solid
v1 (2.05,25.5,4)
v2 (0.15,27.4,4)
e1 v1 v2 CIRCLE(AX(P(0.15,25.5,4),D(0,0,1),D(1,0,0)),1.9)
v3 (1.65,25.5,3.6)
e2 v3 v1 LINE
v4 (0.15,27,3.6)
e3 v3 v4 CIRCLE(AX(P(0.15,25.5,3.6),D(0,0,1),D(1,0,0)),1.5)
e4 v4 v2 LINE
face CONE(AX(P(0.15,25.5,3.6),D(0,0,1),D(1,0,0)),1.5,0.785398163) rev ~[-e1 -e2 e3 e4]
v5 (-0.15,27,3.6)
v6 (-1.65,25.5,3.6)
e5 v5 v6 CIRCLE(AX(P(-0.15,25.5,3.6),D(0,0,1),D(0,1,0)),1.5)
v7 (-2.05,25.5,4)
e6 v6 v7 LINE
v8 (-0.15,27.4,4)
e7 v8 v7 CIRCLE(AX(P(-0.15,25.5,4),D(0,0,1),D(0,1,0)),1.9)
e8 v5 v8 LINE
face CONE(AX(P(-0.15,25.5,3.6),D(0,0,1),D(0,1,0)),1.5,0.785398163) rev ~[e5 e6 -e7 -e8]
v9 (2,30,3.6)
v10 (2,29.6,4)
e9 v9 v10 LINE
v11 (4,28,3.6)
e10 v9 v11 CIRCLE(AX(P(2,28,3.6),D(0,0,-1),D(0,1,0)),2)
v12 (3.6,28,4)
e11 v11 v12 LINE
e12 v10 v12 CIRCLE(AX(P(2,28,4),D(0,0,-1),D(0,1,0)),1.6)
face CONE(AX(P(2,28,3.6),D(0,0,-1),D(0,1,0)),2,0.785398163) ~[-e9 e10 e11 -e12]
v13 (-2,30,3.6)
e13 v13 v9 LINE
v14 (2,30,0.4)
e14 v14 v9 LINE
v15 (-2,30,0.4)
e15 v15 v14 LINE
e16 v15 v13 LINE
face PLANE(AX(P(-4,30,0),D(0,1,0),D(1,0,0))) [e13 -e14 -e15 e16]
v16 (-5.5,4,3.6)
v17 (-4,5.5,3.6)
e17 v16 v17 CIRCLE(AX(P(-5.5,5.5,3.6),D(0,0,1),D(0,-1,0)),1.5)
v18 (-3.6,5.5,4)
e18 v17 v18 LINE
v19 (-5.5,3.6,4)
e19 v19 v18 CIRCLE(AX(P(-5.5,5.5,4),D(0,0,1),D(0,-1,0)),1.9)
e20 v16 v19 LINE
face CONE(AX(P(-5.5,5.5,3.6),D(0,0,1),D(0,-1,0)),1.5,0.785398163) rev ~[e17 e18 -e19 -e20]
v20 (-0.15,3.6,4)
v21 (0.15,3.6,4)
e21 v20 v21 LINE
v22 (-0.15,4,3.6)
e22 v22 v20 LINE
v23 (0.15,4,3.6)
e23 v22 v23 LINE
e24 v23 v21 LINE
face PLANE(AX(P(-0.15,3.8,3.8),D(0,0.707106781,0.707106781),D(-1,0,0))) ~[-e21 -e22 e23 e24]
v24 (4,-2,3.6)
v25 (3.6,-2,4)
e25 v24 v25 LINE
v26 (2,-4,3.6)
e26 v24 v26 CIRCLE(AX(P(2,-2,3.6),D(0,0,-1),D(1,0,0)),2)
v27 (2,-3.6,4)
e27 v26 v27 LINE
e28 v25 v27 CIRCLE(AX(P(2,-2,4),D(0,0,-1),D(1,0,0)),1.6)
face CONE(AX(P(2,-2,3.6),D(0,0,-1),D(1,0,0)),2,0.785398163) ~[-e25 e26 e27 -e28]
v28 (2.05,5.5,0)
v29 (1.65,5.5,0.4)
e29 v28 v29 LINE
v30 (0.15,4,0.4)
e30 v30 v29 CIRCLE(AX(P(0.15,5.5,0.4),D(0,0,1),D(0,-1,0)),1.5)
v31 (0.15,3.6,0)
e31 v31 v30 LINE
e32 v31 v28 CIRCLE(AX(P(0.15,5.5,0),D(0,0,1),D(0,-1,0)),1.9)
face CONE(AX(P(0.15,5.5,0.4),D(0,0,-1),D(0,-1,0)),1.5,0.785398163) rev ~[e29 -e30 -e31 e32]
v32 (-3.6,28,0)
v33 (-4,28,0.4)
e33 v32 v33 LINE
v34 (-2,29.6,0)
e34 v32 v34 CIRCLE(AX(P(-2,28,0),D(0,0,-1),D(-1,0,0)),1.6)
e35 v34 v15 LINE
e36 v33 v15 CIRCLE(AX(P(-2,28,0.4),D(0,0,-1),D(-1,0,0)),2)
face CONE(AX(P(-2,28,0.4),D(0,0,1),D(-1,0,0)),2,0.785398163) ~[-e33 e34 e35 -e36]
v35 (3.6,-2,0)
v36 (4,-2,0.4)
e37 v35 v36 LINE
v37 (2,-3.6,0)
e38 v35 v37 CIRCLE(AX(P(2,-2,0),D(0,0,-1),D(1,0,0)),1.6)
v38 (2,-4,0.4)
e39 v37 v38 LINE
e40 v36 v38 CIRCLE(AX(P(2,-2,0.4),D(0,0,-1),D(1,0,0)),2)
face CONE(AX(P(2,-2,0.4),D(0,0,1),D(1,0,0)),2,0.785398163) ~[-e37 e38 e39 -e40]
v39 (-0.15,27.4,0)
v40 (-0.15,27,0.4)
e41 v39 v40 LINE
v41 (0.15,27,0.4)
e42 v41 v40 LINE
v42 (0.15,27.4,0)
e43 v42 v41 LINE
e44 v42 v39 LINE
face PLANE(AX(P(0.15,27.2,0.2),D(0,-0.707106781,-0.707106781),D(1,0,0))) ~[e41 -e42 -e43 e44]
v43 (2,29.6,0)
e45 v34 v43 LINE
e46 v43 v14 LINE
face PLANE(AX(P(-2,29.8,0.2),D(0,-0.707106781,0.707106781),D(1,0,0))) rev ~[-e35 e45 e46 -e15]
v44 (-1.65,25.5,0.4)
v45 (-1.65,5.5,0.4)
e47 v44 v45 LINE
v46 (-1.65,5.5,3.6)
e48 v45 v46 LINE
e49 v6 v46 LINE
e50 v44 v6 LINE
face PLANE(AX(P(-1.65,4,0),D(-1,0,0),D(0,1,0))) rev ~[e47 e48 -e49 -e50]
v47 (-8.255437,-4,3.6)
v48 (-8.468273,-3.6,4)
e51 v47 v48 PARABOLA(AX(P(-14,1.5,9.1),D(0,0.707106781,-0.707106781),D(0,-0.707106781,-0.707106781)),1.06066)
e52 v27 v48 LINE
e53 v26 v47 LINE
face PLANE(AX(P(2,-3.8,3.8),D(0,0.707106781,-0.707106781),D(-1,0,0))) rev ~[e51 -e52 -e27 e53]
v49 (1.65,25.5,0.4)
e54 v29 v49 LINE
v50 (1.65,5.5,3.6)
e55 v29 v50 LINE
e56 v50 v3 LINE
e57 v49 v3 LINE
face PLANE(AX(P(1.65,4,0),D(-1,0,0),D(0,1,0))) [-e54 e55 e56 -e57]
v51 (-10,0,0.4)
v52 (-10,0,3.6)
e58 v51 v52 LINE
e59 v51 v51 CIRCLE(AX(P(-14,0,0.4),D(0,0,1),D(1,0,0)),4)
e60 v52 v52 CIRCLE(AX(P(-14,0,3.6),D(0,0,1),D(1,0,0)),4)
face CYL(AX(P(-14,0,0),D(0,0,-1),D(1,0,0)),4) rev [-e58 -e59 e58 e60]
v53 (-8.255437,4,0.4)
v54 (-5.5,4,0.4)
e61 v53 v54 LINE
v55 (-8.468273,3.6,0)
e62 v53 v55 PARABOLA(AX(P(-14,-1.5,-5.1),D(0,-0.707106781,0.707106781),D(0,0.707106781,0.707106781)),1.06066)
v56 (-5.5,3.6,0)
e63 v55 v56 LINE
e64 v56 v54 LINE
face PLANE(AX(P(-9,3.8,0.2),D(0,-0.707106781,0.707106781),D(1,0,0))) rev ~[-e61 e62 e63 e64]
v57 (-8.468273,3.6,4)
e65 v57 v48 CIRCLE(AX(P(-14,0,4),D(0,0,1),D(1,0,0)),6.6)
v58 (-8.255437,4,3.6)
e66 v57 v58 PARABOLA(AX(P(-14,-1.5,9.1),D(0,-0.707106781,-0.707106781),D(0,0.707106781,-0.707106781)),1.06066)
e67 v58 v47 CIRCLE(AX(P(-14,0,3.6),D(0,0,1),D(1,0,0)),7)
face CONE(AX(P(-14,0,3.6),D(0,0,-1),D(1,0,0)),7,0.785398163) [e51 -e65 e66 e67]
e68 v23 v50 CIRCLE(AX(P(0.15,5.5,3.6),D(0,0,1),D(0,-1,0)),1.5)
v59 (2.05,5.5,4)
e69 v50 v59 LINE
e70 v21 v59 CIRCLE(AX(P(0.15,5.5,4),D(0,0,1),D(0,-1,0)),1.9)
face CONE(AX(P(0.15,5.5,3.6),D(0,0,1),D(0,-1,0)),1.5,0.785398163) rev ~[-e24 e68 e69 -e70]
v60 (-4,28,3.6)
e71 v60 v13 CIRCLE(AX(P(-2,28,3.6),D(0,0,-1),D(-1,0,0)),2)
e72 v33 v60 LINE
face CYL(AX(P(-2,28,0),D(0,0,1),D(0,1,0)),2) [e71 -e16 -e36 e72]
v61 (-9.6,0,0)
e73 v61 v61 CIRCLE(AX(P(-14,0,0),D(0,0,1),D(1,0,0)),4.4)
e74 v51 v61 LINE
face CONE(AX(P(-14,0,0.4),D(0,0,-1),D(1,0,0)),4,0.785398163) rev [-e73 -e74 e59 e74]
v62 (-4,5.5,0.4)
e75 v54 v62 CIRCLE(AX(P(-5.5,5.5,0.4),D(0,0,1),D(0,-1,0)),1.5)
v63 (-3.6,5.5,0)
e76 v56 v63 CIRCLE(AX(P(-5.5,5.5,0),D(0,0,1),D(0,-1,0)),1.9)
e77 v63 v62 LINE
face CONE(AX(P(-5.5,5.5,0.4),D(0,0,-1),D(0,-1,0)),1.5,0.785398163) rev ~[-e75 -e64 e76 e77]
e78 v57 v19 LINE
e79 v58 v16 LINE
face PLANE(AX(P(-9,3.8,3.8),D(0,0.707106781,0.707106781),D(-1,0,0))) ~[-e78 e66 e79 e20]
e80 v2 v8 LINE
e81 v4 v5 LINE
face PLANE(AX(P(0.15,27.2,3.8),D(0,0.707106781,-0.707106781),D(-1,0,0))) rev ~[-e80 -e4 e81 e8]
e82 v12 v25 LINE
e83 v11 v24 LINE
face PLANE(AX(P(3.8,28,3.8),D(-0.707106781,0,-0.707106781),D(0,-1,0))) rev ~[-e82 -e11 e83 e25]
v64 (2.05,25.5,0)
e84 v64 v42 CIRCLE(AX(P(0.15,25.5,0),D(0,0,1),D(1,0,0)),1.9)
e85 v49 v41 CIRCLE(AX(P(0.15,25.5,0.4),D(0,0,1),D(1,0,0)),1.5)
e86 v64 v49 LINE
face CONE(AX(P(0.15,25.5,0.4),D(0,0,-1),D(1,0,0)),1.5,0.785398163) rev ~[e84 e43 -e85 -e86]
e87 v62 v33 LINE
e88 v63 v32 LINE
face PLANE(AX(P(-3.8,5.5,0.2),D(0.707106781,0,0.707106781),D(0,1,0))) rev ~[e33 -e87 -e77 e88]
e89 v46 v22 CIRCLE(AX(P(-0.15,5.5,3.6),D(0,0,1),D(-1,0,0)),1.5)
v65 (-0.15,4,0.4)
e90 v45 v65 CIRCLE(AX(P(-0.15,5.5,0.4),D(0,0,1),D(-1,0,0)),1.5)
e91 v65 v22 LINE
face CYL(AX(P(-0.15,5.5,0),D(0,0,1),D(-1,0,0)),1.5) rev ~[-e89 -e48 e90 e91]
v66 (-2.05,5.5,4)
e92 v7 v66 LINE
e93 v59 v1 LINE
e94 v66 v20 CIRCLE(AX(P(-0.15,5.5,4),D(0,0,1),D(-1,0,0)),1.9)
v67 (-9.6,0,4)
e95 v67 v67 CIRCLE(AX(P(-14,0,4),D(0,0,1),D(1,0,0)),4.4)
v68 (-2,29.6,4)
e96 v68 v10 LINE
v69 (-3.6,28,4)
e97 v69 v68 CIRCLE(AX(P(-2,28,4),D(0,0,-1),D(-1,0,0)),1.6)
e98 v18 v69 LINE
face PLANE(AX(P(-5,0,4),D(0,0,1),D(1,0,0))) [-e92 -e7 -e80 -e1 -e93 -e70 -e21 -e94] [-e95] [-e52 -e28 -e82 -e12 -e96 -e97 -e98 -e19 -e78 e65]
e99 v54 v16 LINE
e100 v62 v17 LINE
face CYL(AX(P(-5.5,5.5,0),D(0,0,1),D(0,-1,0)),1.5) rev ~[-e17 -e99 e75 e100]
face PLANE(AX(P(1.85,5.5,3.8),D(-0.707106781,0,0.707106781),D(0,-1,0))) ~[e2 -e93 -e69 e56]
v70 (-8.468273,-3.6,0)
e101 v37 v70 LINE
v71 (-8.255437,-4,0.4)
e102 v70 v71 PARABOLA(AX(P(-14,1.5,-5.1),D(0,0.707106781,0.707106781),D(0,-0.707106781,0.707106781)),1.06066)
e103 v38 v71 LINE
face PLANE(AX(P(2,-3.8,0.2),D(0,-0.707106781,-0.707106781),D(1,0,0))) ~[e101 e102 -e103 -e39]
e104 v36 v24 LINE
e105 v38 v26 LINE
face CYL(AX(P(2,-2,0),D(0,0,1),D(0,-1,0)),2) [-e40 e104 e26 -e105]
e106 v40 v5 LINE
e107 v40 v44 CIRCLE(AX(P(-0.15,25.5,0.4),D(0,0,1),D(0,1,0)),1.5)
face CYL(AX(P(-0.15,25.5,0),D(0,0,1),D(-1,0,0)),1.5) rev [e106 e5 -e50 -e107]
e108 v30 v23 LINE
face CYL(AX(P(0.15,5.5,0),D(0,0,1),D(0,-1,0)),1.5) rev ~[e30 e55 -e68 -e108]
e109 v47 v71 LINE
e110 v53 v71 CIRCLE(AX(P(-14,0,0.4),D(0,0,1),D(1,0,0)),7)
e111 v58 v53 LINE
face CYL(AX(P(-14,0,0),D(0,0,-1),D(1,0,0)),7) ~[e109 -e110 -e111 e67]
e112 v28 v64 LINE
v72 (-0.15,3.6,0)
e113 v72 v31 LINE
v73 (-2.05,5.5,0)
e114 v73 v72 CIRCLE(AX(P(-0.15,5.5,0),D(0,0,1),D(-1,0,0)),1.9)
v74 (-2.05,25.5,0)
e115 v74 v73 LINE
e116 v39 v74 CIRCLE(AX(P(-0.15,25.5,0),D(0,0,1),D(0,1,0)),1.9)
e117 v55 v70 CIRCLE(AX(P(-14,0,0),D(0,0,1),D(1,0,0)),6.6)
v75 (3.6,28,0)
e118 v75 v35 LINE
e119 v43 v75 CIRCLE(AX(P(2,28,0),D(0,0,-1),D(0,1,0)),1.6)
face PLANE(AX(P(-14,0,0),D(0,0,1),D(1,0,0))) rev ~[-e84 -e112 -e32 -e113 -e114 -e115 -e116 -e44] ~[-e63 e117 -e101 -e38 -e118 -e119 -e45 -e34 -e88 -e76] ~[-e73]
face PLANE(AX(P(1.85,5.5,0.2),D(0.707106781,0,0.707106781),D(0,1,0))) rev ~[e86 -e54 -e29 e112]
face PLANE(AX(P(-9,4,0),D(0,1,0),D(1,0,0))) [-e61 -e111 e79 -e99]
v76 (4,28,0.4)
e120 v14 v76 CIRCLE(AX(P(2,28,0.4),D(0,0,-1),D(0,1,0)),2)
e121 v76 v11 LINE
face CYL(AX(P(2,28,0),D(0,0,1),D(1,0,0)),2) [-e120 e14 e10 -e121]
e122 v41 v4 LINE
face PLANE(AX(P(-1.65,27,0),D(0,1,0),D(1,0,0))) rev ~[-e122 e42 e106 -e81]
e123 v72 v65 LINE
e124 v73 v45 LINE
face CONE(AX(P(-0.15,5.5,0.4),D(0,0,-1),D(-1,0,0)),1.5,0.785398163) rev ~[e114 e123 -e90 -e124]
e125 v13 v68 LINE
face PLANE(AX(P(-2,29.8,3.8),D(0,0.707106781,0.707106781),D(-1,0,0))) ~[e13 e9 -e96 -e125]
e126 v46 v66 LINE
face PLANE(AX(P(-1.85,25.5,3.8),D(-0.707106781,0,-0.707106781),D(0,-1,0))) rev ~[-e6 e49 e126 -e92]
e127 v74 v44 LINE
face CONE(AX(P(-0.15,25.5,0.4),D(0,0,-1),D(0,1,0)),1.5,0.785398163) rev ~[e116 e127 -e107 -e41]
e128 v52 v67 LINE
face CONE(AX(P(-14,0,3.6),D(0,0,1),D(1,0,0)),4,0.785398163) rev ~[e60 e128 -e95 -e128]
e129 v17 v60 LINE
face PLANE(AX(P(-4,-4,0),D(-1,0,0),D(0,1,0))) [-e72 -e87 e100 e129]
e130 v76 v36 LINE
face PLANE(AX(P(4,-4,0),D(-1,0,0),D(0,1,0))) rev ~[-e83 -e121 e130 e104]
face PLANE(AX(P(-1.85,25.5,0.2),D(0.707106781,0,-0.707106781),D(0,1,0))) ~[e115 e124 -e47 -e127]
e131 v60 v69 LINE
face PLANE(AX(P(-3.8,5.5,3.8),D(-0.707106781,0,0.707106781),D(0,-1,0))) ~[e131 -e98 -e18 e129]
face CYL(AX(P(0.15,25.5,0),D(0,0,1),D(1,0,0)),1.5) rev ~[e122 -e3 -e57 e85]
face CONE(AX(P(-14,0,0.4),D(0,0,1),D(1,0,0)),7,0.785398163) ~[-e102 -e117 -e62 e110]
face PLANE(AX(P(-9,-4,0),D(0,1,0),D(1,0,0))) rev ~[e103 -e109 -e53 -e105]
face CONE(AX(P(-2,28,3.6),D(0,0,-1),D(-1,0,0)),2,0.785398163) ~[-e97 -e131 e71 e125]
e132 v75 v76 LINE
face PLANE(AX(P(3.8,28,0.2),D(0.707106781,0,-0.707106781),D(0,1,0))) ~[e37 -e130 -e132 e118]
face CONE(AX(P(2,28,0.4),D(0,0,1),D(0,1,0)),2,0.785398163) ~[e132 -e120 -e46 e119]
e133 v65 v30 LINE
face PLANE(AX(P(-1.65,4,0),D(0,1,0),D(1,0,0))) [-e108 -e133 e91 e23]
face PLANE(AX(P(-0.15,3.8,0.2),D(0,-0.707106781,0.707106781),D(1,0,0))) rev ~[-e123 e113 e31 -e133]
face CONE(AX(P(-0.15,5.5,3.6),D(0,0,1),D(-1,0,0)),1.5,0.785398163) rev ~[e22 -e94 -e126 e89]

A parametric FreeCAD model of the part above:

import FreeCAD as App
import Part
import Sketcher
Q = App.Units.Quantity


def edges_at(feature, points):
    """Names of the edges that pass closest to the given points."""
    edges = feature.Shape.Edges
    near = lambda p: min(range(len(edges)), key=lambda i: edges[i].distToShape(Part.Vertex(*p))[0])
    return sorted({f"Edge{near(p) + 1}" for p in points})

doc = App.newDocument("Part")
body = doc.addObject("PartDesign::Body", "Body")

sketch1 = body.newObject("Sketcher::SketchObject", "Sketch")
sketch1.AttachmentSupport = (doc.getObject("XY_Plane"), [""])
sketch1.MapMode = "FlatFace"
sketch1.addGeometry([
    Part.LineSegment(App.Vector(-1.6, 27, 0), App.Vector(-1.6, 4, 0)),
    Part.LineSegment(App.Vector(-1.6, 4, 0), App.Vector(1.6, 4, 0)),
    Part.LineSegment(App.Vector(1.6, 4, 0), App.Vector(1.6, 27, 0)),
    Part.LineSegment(App.Vector(1.6, 27, 0), App.Vector(-1.6, 27, 0)),
], False)
sketch1.addConstraint([
    Sketcher.Constraint("Coincident", 0, 2, 1, 1),
    Sketcher.Constraint("Coincident", 1, 2, 2, 1),
    Sketcher.Constraint("Coincident", 2, 2, 3, 1),
    Sketcher.Constraint("Coincident", 3, 2, 0, 1),
    Sketcher.Constraint("Vertical", 0),
    Sketcher.Constraint("Horizontal", 1),
    Sketcher.Constraint("Vertical", 2),
    Sketcher.Constraint("Horizontal", 3),
    Sketcher.Constraint("DistanceY", 0, 2, 0, 1, Q("23 mm")),
    Sketcher.Constraint("DistanceX", 1, 1, 1, 2, Q("3.3 mm")),
    Sketcher.Constraint("DistanceY", -1, 1, 0, 2, Q("4 mm")),
    Sketcher.Constraint("DistanceX", 0, 2, -1, 1, Q("1.65 mm")),
])
pad1 = body.newObject("PartDesign::Pad", "Pad")
pad1.Profile = sketch1
pad1.Length = 10
doc.recompute()

fillet = body.newObject("PartDesign::Fillet", "Fillet")
fillet.Base = (pad1, edges_at(pad1, [
    (-1.65, 4, 5),
    (-1.65, 27, 5),
    (1.65, 4, 5),
    (1.65, 27, 5),
]))
fillet.Radius = 1.5
body2 = doc.addObject("PartDesign::Body", "Body001")

sketch2 = body2.newObject("Sketcher::SketchObject", "Sketch001")
sketch2.AttachmentSupport = (doc.getObject("XY_Plane001"), [""])
sketch2.MapMode = "FlatFace"
sketch2.addGeometry([
    Part.LineSegment(App.Vector(-4, 30, 0), App.Vector(-4, -4, 0)),
    Part.LineSegment(App.Vector(-4, -4, 0), App.Vector(4, -4, 0)),
    Part.LineSegment(App.Vector(4, -4, 0), App.Vector(4, 30, 0)),
    Part.LineSegment(App.Vector(4, 30, 0), App.Vector(-4, 30, 0)),
], False)
sketch2.addConstraint([
    Sketcher.Constraint("Coincident", 0, 2, 1, 1),
    Sketcher.Constraint("Coincident", 1, 2, 2, 1),
    Sketcher.Constraint("Coincident", 2, 2, 3, 1),
    Sketcher.Constraint("Coincident", 3, 2, 0, 1),
    Sketcher.Constraint("Vertical", 0),
    Sketcher.Constraint("Horizontal", 1),
    Sketcher.Constraint("Vertical", 2),
    Sketcher.Constraint("Horizontal", 3),
    Sketcher.Constraint("DistanceX", 1, 1, 1, 2, Q("8 mm")),
    Sketcher.Constraint("DistanceY", 0, 2, 0, 1, Q("34 mm")),
    Sketcher.Constraint("DistanceX", 0, 2, -1, 1, Q("4 mm")),
    Sketcher.Constraint("DistanceY", 0, 2, -1, 1, Q("4 mm")),
])
pad2 = body2.newObject("PartDesign::Pad", "Pad001")
pad2.Profile = sketch2
pad2.Length = 4
body3 = doc.addObject("PartDesign::Body", "Body002")

sketch3 = body3.newObject("Sketcher::SketchObject", "Sketch002")
sketch3.AttachmentSupport = (doc.getObject("XY_Plane002"), [""])
sketch3.MapMode = "FlatFace"
sketch3.addGeometry([
    Part.LineSegment(App.Vector(-9, 4, 0), App.Vector(-9, -4, 0)),
    Part.LineSegment(App.Vector(-9, -4, 0), App.Vector(-1, -4, 0)),
    Part.LineSegment(App.Vector(-1, -4, 0), App.Vector(-1, 4, 0)),
    Part.LineSegment(App.Vector(-1, 4, 0), App.Vector(-9, 4, 0)),
], False)
sketch3.addConstraint([
    Sketcher.Constraint("Coincident", 0, 2, 1, 1),
    Sketcher.Constraint("Coincident", 1, 2, 2, 1),
    Sketcher.Constraint("Coincident", 2, 2, 3, 1),
    Sketcher.Constraint("Coincident", 3, 2, 0, 1),
    Sketcher.Constraint("Vertical", 0),
    Sketcher.Constraint("Horizontal", 1),
    Sketcher.Constraint("Vertical", 2),
    Sketcher.Constraint("Horizontal", 3),
    Sketcher.Constraint("Equal", 3, 0),
    Sketcher.Constraint("DistanceX", 1, 1, 1, 2, Q("8 mm")),
    Sketcher.Constraint("DistanceX", 0, 2, -1, 1, Q("9 mm")),
    Sketcher.Constraint("DistanceY", 0, 2, -1, 1, Q("4 mm")),
])
pad3 = body3.newObject("PartDesign::Pad", "Pad002")
pad3.Profile = sketch3
pad3.Length = 4
doc.recompute()

boolean = body3.newObject("PartDesign::Boolean", "Boolean")
boolean.Type = "Fuse"
boolean.addObjects([body2])
doc.recompute()

fillet2 = body3.newObject("PartDesign::Fillet", "Fillet001")
fillet2.Base = (boolean, edges_at(boolean, [(-4, 30, 2), (4, -4, 2), (4, 30, 2)]))
fillet2.Radius = 2
doc.recompute()

fillet3 = body3.newObject("PartDesign::Fillet", "Fillet002")
fillet3.Base = (fillet2, edges_at(fillet2, [(-4, 4, 2)]))
fillet3.Radius = 1.5
doc.recompute()

boolean2 = body3.newObject("PartDesign::Boolean", "Boolean001")
boolean2.Type = "Cut"
boolean2.addObjects([body])
doc.recompute()

chamfer = body3.newObject("PartDesign::Chamfer", "Chamfer")
chamfer.Base = (boolean2, edges_at(boolean2, [
    (-4, 16.75, 4),
    (-4, 16.75, 0),
    (-4.439, 4.439, 4),
    (-4.439, 4.439, 0),
    (-3.414, 29.414, 0),
    (-3.414, 29.414, 4),
    (0, 30, 0),
    (0, 30, 4),
    (3.414, 29.414, 0),
    (3.414, 29.414, 4),
    (4, 13, 4),
    (4, 13, 0),
    (3.414, -3.414, 0),
    (3.414, -3.414, 4),
    (-7.25, 4, 0),
    (-7.25, 4, 4),
    (-9, 0, 4),
    (-9, 0, 0),
    (-3.5, -4, 4),
    (-1.211, 4.439, 4),
    (-1.65, 15.5, 4),
    (-1.211, 26.561, 4),
    (0, 27, 4),
    (1.211, 26.561, 4),
    (1.65, 15.5, 4),
    (1.211, 4.439, 4),
    (0, 4, 4),
    (-1.211, 4.439, 0),
    (0, 4, 0),
    (1.211, 4.439, 0),
    (1.65, 15.5, 0),
    (1.211, 26.561, 0),
    (0, 27, 0),
    (-1.211, 26.561, 0),
    (-1.65, 15.5, 0),
    (-3.5, -4, 0),
]))
chamfer.Size = 0.4
body4 = doc.addObject("PartDesign::Body", "Body003")

sketch4 = body4.newObject("Sketcher::SketchObject", "Sketch003")
sketch4.AttachmentSupport = (doc.getObject("XY_Plane003"), [""])
sketch4.MapMode = "FlatFace"
sketch4.addGeometry([
    Part.Circle(App.Vector(0, 0, 0), App.Vector(0, 0, 1), 7),
    Part.Circle(App.Vector(0, 0, 0), App.Vector(0, 0, 1), 4),
], False)
sketch4.addConstraint([
    Sketcher.Constraint("Coincident", 0, 3, -1, 1),
    Sketcher.Constraint("Coincident", 1, 3, -1, 1),
    Sketcher.Constraint("Diameter", 0, Q("14 mm")),
    Sketcher.Constraint("Diameter", 1, Q("8 mm")),
])
pad4 = body4.newObject("PartDesign::Pad", "Pad003")
pad4.Profile = sketch4
pad4.Length = 4
doc.recompute()

chamfer2 = body4.newObject("PartDesign::Chamfer", "Chamfer001")
chamfer2.Base = (pad4, edges_at(pad4, [
    (-7, 0, 4),
    (-7, 0, 0),
    (-4, 0, 4),
    (-4, 0, 0),
]))
chamfer2.Size = 0.4
body5 = doc.addObject("PartDesign::Body", "Body004")
doc.recompute()

body4.Placement = App.Placement(App.Vector(-14, 0, 0), App.Rotation(App.Vector(0, 0, 1), 0))
boolean3 = body5.newObject("PartDesign::Boolean", "Boolean002")
boolean3.Type = "Fuse"
boolean3.addObjects([body4])
doc.recompute()

boolean4 = body5.newObject("PartDesign::Boolean", "Boolean003")
boolean4.Type = "Fuse"
boolean4.addObjects([body3])

doc.recompute()
